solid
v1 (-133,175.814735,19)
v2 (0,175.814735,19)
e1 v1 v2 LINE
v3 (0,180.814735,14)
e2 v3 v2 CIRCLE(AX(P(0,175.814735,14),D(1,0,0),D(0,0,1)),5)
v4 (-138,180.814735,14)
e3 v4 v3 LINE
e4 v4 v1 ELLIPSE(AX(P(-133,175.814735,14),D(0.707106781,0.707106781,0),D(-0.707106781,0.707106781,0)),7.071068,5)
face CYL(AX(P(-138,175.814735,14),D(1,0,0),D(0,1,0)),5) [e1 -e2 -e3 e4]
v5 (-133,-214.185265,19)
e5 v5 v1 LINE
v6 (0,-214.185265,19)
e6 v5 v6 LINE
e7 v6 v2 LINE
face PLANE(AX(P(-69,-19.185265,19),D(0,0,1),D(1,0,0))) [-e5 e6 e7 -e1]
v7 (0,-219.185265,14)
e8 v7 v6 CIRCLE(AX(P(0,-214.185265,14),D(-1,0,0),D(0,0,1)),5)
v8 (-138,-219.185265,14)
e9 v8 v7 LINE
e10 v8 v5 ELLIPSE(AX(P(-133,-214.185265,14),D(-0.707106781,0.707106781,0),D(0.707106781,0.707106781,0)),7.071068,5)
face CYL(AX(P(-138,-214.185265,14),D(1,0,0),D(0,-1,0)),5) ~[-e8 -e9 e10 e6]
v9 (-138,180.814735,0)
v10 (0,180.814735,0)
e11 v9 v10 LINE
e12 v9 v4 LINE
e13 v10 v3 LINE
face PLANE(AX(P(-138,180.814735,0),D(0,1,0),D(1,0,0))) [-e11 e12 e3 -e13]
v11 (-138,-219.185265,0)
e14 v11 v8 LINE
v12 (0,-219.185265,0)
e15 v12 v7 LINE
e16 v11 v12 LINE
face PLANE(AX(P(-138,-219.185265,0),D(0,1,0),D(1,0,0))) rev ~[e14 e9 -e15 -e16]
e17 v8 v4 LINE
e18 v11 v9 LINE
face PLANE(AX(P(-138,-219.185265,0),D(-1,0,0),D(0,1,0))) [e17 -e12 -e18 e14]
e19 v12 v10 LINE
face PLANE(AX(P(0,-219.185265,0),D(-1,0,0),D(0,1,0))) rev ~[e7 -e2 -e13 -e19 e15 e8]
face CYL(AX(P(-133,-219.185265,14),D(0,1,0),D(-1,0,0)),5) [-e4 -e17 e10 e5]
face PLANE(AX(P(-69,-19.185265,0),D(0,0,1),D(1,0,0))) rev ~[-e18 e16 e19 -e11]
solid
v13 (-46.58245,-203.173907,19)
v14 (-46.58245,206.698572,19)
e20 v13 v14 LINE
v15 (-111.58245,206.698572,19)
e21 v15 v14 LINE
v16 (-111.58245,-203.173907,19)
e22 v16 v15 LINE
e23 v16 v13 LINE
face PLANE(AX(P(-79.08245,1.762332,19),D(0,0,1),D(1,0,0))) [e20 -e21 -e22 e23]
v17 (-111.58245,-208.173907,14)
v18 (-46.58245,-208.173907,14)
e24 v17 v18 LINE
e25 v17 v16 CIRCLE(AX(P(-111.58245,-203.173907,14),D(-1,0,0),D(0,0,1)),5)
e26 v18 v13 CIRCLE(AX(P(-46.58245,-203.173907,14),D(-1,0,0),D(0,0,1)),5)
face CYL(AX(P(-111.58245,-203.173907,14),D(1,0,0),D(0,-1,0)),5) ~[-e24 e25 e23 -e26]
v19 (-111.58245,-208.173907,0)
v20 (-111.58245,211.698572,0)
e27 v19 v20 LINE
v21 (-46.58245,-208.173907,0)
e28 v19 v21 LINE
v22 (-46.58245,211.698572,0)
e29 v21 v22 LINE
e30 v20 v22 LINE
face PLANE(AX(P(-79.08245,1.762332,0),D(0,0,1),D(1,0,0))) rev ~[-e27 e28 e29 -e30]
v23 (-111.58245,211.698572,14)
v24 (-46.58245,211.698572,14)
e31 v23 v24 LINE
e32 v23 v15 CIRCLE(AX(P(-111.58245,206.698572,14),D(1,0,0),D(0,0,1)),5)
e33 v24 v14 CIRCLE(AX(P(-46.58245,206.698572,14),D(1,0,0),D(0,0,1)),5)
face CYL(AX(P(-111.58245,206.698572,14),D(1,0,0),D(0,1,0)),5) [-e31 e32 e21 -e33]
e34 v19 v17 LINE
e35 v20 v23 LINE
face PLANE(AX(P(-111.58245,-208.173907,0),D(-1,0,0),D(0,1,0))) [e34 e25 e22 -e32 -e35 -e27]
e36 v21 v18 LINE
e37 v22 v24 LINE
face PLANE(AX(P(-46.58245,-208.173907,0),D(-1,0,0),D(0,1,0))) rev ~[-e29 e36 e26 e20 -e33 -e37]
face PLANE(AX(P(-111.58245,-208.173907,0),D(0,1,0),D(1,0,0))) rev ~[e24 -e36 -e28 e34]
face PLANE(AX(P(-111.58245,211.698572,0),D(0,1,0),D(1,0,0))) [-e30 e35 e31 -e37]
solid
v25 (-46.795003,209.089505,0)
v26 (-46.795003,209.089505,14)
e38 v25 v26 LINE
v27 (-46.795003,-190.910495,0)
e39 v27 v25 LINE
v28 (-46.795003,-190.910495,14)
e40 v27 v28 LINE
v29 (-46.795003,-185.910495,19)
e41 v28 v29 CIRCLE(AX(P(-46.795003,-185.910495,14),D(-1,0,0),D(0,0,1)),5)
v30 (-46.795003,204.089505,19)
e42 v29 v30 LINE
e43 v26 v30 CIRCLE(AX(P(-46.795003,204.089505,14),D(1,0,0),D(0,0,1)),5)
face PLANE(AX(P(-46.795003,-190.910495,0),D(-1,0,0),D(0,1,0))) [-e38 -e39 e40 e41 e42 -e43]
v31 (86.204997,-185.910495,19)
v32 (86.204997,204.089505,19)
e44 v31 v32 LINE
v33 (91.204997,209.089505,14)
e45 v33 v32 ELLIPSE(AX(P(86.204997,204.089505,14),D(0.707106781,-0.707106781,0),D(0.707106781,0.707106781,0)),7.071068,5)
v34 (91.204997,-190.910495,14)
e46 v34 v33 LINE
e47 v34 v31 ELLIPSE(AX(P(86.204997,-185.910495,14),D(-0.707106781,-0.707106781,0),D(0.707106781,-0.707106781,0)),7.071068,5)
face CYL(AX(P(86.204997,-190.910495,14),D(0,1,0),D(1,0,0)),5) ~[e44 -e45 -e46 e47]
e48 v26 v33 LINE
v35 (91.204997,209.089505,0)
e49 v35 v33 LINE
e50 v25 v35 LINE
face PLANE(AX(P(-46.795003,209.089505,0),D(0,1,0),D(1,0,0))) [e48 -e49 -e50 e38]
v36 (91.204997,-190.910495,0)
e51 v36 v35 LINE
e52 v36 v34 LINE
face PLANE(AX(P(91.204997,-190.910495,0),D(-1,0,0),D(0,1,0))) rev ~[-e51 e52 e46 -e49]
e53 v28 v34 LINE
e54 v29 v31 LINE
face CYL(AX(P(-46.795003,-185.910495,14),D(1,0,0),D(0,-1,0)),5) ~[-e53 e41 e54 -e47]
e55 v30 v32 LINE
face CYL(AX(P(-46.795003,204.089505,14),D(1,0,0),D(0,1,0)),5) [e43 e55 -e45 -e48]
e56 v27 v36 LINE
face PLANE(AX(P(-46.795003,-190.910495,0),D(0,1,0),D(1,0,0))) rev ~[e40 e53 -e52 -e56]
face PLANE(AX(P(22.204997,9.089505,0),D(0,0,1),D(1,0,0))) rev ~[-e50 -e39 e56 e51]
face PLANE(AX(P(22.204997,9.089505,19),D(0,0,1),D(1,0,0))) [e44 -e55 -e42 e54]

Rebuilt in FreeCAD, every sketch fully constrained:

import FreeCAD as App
import Part
import Sketcher


def edges_at(feature, points):
    """Names of the edges that pass closest to the given points."""
    edges = feature.Shape.Edges
    near = lambda p: min(range(len(edges)), key=lambda i: edges[i].distToShape(Part.Vertex(*p))[0])
    return sorted({f"Edge{near(p) + 1}" for p in points})


def add_polygon(sketch, points):
    """Adds a closed chain of lines whose ends are joined by coincident constraints."""
    first, n = sketch.GeometryCount, len(points)
    for a, b in zip(points, points[1:] + points[:1]):
        sketch.addGeometry(Part.LineSegment(App.Vector(*a, 0), App.Vector(*b, 0)), False)
    for i in range(n):
        sketch.addConstraint(Sketcher.Constraint("Coincident", first + i, 2, first + (i + 1) % n, 1))

doc = App.newDocument("Part")
params = doc.addObject("Spreadsheet::Sheet", "Params")
for row, (alias, value) in enumerate([
    ("sketch1_width", "138 mm"),
    ("sketch1_height", "400 mm"),
    ("pad1_length", "19 mm"),
    ("fillet_radius", "5 mm"),
    ("sketch2_width", "65 mm"),
    ("pad2_length", "19 mm"),
    ("fillet2_radius", "5 mm"),
    ("sketch3_width", "138 mm"),
    ("sketch3_height", "400 mm"),
    ("pad3_length", "19 mm"),
    ("fillet3_radius", "5 mm"),
], start=1):
    params.set(f"A{row}", alias)
    params.set(f"B{row}", "=" + value)
    params.setAlias(f"B{row}", alias)

body = doc.addObject("PartDesign::Body", "Body")

# Sketch on XY plane
sketch1 = doc.addObject("Sketcher::SketchObject", "Sketch")
body.addObject(sketch1)
sketch1.AttachmentSupport = (doc.XY_Plane, [""])
sketch1.MapMode = "FlatFace"
add_polygon(sketch1, [(-47, 209), (-47, -191), (91, -191), (91, 209)])  # lines 0-3
sketch1.addConstraint([
    Sketcher.Constraint("Vertical", 0),
    Sketcher.Constraint("Horizontal", 1),
    Sketcher.Constraint("Vertical", 2),
    Sketcher.Constraint("Horizontal", 3),
    Sketcher.Constraint("DistanceX", 1, 1, 1, 2, 138.0),
    Sketcher.Constraint("DistanceY", 0, 2, 0, 1, 400.0),
    Sketcher.Constraint("DistanceX", 0, 2, -1, 1, 46.795003),
    Sketcher.Constraint("DistanceY", 0, 2, -1, 1, 190.910495),
])
sketch1.setExpression("Constraints[8]", "Params.sketch1_width")
sketch1.setExpression("Constraints[9]", "Params.sketch1_height")
pad1 = doc.addObject("PartDesign::Pad", "Pad")
body.addObject(pad1)
pad1.Profile = sketch1
pad1.setExpression("Length", "Params.pad1_length")
doc.recompute()

fillet = doc.addObject("PartDesign::Fillet", "Fillet")
body.addObject(fillet)
fillet.Base = (pad1, edges_at(pad1, [(22.205, -190.91, 19), (91.205, 9.09, 19), (22.205, 209.09, 19)]))
fillet.setExpression("Radius", "Params.fillet_radius")
body2 = doc.addObject("PartDesign::Body", "Body001")

# Sketch on XY plane
sketch2 = doc.addObject("Sketcher::SketchObject", "Sketch001")
body2.addObject(sketch2)
sketch2.AttachmentSupport = (doc.getObject("XY_Plane001"), [""])
sketch2.MapMode = "FlatFace"
add_polygon(sketch2, [(-112, 212), (-112, -208), (-47, -208), (-47, 212)])  # lines 0-3
sketch2.addConstraint([
    Sketcher.Constraint("Vertical", 0),
    Sketcher.Constraint("Horizontal", 1),
    Sketcher.Constraint("Vertical", 2),
    Sketcher.Constraint("Horizontal", 3),
    Sketcher.Constraint("DistanceX", 1, 1, 1, 2, 65.0),
    Sketcher.Constraint("DistanceY", 0, 2, 0, 1, 419.872479),
    Sketcher.Constraint("DistanceX", 0, 2, -1, 1, 111.58245),
    Sketcher.Constraint("DistanceY", -1, 1, 2, 2, 211.698572),
])
sketch2.setExpression("Constraints[8]", "Params.sketch2_width")
pad2 = doc.addObject("PartDesign::Pad", "Pad001")
body2.addObject(pad2)
pad2.Profile = sketch2
pad2.setExpression("Length", "Params.pad2_length")
doc.recompute()

fillet2 = doc.addObject("PartDesign::Fillet", "Fillet001")
body2.addObject(fillet2)
fillet2.Base = (pad2, edges_at(pad2, [(-79.082, -208.174, 19), (-79.082, 211.699, 19)]))
fillet2.setExpression("Radius", "Params.fillet2_radius")
body3 = doc.addObject("PartDesign::Body", "Body002")

# Sketch on XY plane
sketch3 = doc.addObject("Sketcher::SketchObject", "Sketch002")
body3.addObject(sketch3)
sketch3.AttachmentSupport = (doc.getObject("XY_Plane002"), [""])
sketch3.MapMode = "FlatFace"
add_polygon(sketch3, [(-138, 181), (-138, -219), (0, -219), (0, 181)])  # lines 0-3
sketch3.addConstraint([
    Sketcher.Constraint("Vertical", 0),
    Sketcher.Constraint("Horizontal", 1),
    Sketcher.Constraint("Vertical", 2),
    Sketcher.Constraint("Horizontal", 3),
    Sketcher.Constraint("PointOnObject", 1, 2, -2),
    Sketcher.Constraint("DistanceX", 1, 1, 1, 2, 138.0),
    Sketcher.Constraint("DistanceY", 0, 2, 0, 1, 400.0),
    Sketcher.Constraint("DistanceY", 0, 2, -1, 1, 219.185265),
])
sketch3.setExpression("Constraints[9]", "Params.sketch3_width")
sketch3.setExpression("Constraints[10]", "Params.sketch3_height")
pad3 = doc.addObject("PartDesign::Pad", "Pad002")
body3.addObject(pad3)
pad3.Profile = sketch3
pad3.setExpression("Length", "Params.pad3_length")
doc.recompute()

fillet3 = doc.addObject("PartDesign::Fillet", "Fillet002")
body3.addObject(fillet3)
fillet3.Base = (pad3, edges_at(pad3, [(-138, -19.185, 19), (-69, -219.185, 19), (-69, 180.815, 19)]))
fillet3.setExpression("Radius", "Params.fillet3_radius")

doc.recompute()
